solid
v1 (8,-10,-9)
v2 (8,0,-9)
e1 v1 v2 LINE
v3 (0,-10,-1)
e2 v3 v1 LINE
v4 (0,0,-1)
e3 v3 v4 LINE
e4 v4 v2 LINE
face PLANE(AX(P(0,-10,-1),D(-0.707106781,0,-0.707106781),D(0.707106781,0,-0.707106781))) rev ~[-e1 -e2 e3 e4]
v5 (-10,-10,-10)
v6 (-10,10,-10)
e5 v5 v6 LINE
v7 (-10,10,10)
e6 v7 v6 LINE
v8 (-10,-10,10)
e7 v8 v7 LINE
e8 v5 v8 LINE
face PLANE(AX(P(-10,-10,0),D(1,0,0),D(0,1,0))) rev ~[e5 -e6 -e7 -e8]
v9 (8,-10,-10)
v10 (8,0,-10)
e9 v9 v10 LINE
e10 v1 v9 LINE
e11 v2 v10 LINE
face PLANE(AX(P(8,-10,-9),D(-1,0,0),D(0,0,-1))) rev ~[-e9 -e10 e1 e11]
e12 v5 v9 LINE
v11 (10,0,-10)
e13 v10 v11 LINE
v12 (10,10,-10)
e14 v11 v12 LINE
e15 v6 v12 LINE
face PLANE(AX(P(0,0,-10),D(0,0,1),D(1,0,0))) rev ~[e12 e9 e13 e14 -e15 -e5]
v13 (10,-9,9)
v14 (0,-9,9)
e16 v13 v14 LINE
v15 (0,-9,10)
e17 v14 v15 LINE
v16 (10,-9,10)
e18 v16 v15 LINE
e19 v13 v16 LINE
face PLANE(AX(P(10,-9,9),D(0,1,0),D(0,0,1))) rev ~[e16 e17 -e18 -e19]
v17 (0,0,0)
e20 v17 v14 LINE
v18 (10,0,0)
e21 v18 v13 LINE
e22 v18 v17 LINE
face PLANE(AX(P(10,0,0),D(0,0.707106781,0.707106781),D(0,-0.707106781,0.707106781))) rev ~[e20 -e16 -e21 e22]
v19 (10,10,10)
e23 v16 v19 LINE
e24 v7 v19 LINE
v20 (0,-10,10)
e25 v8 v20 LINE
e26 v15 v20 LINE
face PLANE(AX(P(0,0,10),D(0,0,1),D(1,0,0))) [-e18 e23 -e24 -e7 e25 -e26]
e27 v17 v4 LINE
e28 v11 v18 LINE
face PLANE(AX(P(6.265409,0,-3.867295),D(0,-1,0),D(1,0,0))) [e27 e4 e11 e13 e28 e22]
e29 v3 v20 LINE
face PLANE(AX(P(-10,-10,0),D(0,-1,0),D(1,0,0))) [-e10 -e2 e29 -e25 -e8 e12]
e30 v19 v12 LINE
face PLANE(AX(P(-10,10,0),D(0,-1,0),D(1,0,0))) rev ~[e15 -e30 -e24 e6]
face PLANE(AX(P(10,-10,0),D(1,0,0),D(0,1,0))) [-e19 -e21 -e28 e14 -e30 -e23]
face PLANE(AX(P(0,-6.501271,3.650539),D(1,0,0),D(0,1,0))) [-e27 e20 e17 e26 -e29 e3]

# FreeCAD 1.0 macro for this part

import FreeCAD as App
import Part
import Sketcher

V = App.Vector


def add_polygon(sketch, points):
    """Adds a closed chain of lines whose ends are joined by coincident constraints."""
    first, n = sketch.GeometryCount, len(points)
    for a, b in zip(points, points[1:] + points[:1]):
        sketch.addGeometry(Part.LineSegment(App.Vector(*a, 0), App.Vector(*b, 0)), False)
    for i in range(n):
        sketch.addConstraint(Sketcher.Constraint("Coincident", first + i, 2, first + (i + 1) % n, 1))

doc = App.newDocument("Part")
body = doc.addObject("PartDesign::Body", "Body")

# Sketch on XY plane
sketch1 = body.newObject("Sketcher::SketchObject", "Sketch")
sketch1.AttachmentSupport = (doc.getObject("XY_Plane"), [""])
sketch1.MapMode = "FlatFace"
add_polygon(sketch1, [(-10, 10), (-10, -10), (10, -10), (10, 10)])  # lines 0-3
sketch1.addConstraint([
    Sketcher.Constraint("Vertical", 0),
    Sketcher.Constraint("Horizontal", 1),
    Sketcher.Constraint("Vertical", 2),
    Sketcher.Constraint("Horizontal", 3),
    Sketcher.Constraint("Symmetric", 0, 2, 2, 2, -1, 1),
    Sketcher.Constraint("Equal", 3, 0),
    Sketcher.Constraint("DistanceX", 1, 1, 1, 2, 20.0),
])
pad1 = body.newObject("PartDesign::Pad", "Pad")
pad1.Profile = sketch1
pad1.Length = 10

# Sketch on YZ plane
sketch2 = body.newObject("Sketcher::SketchObject", "Sketch001")
sketch2.AttachmentSupport = (doc.getObject("YZ_Plane"), [""])
sketch2.MapMode = "FlatFace"
sketch2.AttachmentOffset = App.Placement(V(0, 0, 10), App.Rotation())
add_polygon(sketch2, [(-9, 9), (-9, 10), (-10, 10), (-10, 0), (0, 0)])  # lines 0-4
sketch2.addConstraint([
    Sketcher.Constraint("Vertical", 0),
    Sketcher.Constraint("Horizontal", 1),
    Sketcher.Constraint("Vertical", 2),
    Sketcher.Constraint("Horizontal", 3),
    Sketcher.Constraint("Coincident", 3, 2, -1, 1),
    Sketcher.Constraint("Equal", 1, 0),
    Sketcher.Constraint("Equal", 3, 2),
    Sketcher.Constraint("DistanceX", 1, 2, 1, 1, 1.0),
    Sketcher.Constraint("DistanceX", 3, 1, 3, 2, 10.0),
])
pocket1 = body.newObject("PartDesign::Pocket", "Pocket")
pocket1.Profile = sketch2
pocket1.Length = 10

# Sketch on XY plane
sketch3 = body.newObject("Sketcher::SketchObject", "Sketch002")
sketch3.AttachmentSupport = (doc.getObject("XY_Plane"), [""])
sketch3.MapMode = "FlatFace"
add_polygon(sketch3, [(-10, 10), (-10, -10), (10, -10), (10, 10)])  # lines 0-3
sketch3.addConstraint([
    Sketcher.Constraint("Vertical", 0),
    Sketcher.Constraint("Horizontal", 1),
    Sketcher.Constraint("Vertical", 2),
    Sketcher.Constraint("Horizontal", 3),
    Sketcher.Constraint("Symmetric", 0, 2, 2, 2, -1, 1),
    Sketcher.Constraint("Equal", 3, 0),
    Sketcher.Constraint("DistanceX", 1, 1, 1, 2, 20.0),
])
pad2 = body.newObject("PartDesign::Pad", "Pad001")
pad2.Profile = sketch3
pad2.Length = 10
pad2.Reversed = True

# Sketch on XZ plane
sketch4 = body.newObject("Sketcher::SketchObject", "Sketch003")
sketch4.AttachmentSupport = (doc.getObject("XZ_Plane"), [""])
sketch4.MapMode = "FlatFace"
sketch4.AttachmentOffset = App.Placement(V(0, 0, 10), App.Rotation())
add_polygon(sketch4, [(10, 0), (0, 0), (0, -1), (8, -9), (8, -10), (10, -10)])  # lines 0-5
sketch4.addConstraint([
    Sketcher.Constraint("Horizontal", 0),
    Sketcher.Constraint("Vertical", 1),
    Sketcher.Constraint("Vertical", 3),
    Sketcher.Constraint("Horizontal", 4),
    Sketcher.Constraint("Vertical", 5),
    Sketcher.Constraint("Coincident", 0, 2, -1, 1),
    Sketcher.Constraint("Equal", 1, 3),
    Sketcher.Constraint("Equal", 0, 5),
    Sketcher.Constraint("DistanceX", 0, 2, 0, 1, 10.0),
    Sketcher.Constraint("DistanceX", 4, 1, 4, 2, 2.0),
    Sketcher.Constraint("DistanceY", 1, 2, 1, 1, 1.0),
])
pocket2 = body.newObject("PartDesign::Pocket", "Pocket001")
pocket2.Profile = sketch4
pocket2.Length = 10

doc.recompute()
